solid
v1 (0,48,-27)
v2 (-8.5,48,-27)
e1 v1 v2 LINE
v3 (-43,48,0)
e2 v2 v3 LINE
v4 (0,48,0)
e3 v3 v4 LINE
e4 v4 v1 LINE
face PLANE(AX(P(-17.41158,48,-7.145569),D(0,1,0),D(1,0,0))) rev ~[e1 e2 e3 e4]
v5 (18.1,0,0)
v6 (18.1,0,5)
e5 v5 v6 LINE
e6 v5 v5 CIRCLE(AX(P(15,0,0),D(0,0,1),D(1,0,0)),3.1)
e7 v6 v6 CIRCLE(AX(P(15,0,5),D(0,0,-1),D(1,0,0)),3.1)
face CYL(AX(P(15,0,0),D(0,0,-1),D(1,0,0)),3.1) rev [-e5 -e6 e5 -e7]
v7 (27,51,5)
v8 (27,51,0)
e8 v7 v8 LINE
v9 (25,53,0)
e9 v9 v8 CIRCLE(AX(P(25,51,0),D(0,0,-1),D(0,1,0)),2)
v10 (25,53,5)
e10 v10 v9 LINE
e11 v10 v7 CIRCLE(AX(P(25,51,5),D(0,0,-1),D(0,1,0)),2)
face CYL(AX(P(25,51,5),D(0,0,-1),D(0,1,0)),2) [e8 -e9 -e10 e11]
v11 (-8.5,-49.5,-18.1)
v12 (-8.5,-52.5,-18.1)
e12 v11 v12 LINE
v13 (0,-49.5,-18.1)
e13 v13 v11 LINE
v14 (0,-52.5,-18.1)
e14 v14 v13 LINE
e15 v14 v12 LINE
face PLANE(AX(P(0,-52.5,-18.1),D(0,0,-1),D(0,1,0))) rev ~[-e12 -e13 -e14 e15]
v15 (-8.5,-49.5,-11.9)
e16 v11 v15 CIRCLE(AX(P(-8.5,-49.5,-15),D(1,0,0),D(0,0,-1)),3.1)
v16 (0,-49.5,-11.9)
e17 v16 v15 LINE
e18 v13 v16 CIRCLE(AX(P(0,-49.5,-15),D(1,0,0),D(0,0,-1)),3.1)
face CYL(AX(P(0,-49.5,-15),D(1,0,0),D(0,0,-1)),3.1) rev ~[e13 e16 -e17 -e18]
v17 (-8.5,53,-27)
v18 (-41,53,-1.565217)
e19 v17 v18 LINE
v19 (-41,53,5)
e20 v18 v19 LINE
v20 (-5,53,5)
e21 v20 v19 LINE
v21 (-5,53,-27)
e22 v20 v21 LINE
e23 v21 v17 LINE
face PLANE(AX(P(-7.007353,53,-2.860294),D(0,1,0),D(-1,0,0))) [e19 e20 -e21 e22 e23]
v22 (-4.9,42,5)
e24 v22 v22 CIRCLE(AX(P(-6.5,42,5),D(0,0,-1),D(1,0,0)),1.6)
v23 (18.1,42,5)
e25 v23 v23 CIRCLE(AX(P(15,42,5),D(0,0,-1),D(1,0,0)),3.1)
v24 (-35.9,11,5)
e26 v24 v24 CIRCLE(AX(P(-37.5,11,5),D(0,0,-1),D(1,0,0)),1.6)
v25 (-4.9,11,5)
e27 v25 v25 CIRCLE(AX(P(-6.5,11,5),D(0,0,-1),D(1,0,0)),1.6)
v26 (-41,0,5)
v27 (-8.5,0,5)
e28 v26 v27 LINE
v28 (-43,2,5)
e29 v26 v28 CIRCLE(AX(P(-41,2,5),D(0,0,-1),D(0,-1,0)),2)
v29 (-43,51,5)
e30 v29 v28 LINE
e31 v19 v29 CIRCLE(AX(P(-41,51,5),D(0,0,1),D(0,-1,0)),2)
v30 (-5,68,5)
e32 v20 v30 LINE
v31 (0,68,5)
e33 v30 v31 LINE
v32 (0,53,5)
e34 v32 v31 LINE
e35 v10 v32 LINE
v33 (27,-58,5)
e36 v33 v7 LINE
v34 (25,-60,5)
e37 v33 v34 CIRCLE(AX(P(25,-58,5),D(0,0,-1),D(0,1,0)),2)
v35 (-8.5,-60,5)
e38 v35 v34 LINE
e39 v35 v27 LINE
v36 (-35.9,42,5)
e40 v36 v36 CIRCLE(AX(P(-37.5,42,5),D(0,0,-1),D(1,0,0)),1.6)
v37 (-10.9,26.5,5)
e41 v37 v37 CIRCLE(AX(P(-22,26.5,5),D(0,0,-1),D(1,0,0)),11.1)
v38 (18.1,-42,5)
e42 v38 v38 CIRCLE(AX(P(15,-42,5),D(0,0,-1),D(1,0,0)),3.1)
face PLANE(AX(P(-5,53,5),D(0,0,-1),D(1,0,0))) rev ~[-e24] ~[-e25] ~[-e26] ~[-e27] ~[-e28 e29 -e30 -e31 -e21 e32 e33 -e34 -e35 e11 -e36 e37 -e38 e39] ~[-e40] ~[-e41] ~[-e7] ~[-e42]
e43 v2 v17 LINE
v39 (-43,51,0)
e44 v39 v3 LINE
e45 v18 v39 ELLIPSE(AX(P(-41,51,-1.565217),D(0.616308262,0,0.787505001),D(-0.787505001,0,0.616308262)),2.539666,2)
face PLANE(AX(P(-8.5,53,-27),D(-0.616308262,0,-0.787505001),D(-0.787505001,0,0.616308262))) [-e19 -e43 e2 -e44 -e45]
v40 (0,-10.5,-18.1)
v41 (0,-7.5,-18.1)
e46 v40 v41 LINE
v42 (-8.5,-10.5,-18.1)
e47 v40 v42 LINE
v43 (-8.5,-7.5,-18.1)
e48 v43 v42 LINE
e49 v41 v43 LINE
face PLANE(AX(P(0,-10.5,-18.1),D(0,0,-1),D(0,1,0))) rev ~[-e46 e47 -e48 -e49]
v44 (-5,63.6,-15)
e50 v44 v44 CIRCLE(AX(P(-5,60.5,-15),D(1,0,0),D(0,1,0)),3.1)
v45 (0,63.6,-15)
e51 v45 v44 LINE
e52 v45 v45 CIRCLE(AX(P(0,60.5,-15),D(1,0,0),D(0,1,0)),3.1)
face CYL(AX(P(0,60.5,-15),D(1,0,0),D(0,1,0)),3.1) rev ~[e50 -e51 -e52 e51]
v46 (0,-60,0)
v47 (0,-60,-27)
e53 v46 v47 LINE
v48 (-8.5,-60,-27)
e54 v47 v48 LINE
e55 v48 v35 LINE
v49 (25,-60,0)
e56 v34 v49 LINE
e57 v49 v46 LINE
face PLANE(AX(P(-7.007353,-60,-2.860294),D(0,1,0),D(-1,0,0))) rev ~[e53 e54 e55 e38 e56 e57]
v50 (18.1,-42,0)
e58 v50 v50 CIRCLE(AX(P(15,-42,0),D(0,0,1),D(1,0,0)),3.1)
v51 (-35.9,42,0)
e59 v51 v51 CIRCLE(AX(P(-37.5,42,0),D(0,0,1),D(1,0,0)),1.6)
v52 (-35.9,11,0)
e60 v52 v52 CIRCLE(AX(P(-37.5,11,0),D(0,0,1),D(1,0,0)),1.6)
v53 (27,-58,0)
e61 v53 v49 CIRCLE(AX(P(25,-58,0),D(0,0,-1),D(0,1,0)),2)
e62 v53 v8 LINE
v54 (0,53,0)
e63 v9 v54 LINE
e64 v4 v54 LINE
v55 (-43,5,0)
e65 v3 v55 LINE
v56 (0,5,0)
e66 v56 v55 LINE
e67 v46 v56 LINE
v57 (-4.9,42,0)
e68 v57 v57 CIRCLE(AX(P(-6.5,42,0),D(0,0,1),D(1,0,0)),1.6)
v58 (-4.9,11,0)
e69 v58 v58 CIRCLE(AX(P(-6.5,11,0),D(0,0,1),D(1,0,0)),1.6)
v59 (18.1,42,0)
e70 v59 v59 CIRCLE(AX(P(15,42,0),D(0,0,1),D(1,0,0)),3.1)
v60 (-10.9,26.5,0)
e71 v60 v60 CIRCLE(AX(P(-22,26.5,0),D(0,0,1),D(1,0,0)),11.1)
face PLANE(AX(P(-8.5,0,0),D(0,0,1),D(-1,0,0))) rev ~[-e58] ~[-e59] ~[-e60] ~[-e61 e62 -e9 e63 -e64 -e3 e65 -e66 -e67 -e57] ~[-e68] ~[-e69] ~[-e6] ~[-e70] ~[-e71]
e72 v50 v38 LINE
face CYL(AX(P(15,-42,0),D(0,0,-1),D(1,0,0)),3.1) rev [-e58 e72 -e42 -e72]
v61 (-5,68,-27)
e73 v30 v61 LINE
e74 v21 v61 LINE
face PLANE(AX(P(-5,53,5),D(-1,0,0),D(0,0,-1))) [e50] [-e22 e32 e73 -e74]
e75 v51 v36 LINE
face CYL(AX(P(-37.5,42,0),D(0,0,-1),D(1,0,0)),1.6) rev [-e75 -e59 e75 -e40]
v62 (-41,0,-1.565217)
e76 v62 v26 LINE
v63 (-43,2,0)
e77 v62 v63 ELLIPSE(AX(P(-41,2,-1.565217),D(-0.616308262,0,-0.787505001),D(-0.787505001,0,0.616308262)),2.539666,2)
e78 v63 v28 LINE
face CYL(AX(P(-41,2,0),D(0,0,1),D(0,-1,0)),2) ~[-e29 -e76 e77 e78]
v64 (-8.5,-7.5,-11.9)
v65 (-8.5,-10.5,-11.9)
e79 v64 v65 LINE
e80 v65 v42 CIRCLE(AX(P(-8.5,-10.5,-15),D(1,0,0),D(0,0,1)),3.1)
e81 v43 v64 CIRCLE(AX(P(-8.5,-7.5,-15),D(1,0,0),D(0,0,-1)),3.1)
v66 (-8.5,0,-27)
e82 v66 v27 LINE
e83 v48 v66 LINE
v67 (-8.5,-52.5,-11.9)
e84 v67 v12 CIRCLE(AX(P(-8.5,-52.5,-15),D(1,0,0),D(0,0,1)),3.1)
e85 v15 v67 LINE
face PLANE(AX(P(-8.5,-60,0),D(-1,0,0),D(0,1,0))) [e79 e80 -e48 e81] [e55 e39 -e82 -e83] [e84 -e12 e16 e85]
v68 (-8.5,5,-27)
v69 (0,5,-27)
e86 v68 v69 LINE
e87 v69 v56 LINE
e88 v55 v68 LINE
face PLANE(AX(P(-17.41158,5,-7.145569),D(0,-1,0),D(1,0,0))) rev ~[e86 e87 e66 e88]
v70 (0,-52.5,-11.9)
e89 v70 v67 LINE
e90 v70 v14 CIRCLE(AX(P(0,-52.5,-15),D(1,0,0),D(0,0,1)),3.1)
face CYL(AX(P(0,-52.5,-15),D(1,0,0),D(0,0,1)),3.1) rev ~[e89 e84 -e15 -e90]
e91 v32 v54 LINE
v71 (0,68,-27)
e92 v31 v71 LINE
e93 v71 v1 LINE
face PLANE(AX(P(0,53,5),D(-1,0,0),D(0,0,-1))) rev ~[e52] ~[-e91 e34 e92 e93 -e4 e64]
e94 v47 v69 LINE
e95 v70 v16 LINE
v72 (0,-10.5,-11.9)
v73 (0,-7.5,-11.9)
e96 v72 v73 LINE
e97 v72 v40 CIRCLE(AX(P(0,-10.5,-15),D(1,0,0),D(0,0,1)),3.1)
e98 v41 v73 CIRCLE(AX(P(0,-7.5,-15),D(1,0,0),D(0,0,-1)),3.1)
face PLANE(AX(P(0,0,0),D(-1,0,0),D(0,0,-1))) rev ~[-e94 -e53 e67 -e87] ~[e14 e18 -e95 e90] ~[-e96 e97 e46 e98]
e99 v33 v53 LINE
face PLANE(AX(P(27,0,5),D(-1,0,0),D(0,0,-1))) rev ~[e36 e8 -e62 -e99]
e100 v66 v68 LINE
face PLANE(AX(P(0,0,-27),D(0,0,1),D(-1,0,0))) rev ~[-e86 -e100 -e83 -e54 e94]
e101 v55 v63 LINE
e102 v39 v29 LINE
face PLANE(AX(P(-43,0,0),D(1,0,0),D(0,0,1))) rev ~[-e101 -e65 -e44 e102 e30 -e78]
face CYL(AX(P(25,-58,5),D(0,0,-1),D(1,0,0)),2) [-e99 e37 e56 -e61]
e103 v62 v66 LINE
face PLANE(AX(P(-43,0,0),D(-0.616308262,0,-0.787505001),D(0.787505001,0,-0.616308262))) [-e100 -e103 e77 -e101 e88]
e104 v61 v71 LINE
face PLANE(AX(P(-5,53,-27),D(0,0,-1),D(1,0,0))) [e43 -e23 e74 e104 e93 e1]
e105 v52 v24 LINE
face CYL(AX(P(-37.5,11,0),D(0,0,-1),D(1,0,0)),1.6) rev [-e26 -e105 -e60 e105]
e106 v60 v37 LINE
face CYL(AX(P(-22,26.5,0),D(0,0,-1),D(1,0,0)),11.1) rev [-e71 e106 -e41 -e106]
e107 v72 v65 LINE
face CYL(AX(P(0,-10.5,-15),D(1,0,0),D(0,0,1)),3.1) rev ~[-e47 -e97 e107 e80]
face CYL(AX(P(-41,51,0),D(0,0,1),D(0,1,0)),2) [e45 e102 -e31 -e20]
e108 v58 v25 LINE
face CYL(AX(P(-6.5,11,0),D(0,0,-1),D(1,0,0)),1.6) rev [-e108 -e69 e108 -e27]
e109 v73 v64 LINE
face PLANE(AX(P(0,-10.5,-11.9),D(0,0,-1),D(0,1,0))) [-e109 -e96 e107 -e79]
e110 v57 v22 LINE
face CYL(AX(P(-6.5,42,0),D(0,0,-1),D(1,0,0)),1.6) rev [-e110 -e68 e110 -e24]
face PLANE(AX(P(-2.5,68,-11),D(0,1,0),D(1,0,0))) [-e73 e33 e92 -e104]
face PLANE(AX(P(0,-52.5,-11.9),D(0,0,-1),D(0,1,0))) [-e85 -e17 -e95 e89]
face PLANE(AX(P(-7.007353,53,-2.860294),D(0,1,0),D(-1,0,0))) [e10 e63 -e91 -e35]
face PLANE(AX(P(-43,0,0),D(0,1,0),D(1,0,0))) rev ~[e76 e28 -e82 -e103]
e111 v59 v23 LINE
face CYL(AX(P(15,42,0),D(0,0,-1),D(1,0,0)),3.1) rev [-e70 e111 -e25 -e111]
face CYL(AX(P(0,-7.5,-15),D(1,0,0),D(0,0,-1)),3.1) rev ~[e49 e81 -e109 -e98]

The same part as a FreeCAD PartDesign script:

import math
import FreeCAD as App
import Part
import Sketcher
Q = App.Units.Quantity


def edges_at(feature, points):
    """Names of the edges that pass closest to the given points."""
    edges = feature.Shape.Edges
    near = lambda p: min(range(len(edges)), key=lambda i: edges[i].distToShape(Part.Vertex(*p))[0])
    return sorted({f"Edge{near(p) + 1}" for p in points})


def add_polygon(sketch, points):
    """Adds a closed chain of lines whose ends are joined by coincident constraints."""
    first, n = sketch.GeometryCount, len(points)
    for a, b in zip(points, points[1:] + points[:1]):
        sketch.addGeometry(Part.LineSegment(App.Vector(*a, 0), App.Vector(*b, 0)), False)
    for i in range(n):
        sketch.addConstraint(Sketcher.Constraint("Coincident", first + i, 2, first + (i + 1) % n, 1))

doc = App.newDocument("Part")
params = doc.addObject("Spreadsheet::Sheet", "Params")
for row, (alias, value) in enumerate([
    ("sketch1_width", "70 mm"),
    ("sketch1_width2", "27 mm"),
    ("sketch1_height", "5 mm"),
    ("sketch1_width3", "34.5 mm"),
    ("pad1_length", "60 mm"),
    ("pad1_length2", "53 mm"),
    ("sketch2_diameter", "22.2 mm"),
    ("sketch2_diameter2", "6.2 mm"),
    ("sketch2_diameter3", "3.2 mm"),
    ("sketch2_height", "60 mm"),
    ("sketch2_width", "34.5 mm"),
    ("sketch3_radius", "3.1 mm"),
    ("sketch3_width", "3 mm"),
    ("sketch4_width", "43 mm"),
    ("sketch4_height", "5 mm"),
    ("sketch4_height2", "32 mm"),
    ("sketch4_width2", "8.5 mm"),
    ("pad2_length", "5 mm"),
    ("sketch5_width", "43 mm"),
    ("sketch5_height", "32 mm"),
    ("sketch5_height2", "5 mm"),
    ("sketch5_width2", "8.5 mm"),
    ("pad3_length", "5 mm"),
    ("sketch6_width", "43 mm"),
    ("sketch6_height", "27 mm"),
    ("sketch7_width", "5 mm"),
    ("sketch7_height", "32 mm"),
    ("pad4_length", "15 mm"),
    ("sketch8_diameter", "6.2 mm"),
    ("fillet_radius", "2 mm"),
], start=1):
    params.set(f"A{row}", alias)
    params.set(f"B{row}", "=" + value)
    params.setAlias(f"B{row}", alias)

body = doc.addObject("PartDesign::Body", "Body")

# Sketch on XZ plane
sketch1 = body.newObject("Sketcher::SketchObject", "Sketch")
sketch1.AttachmentSupport = (doc.getObject("XZ_Plane"), [""])
sketch1.MapMode = "FlatFace"
add_polygon(sketch1, [(27, 5), (-43, 5), (-43, 0), (-8, 0), (-8, -27), (0, -27), (0, 0), (27, 0)])  # lines 0-7
sketch1.addConstraint([
    Sketcher.Constraint("Horizontal", 0),
    Sketcher.Constraint("Vertical", 1),
    Sketcher.Constraint("Horizontal", 2),
    Sketcher.Constraint("Vertical", 3),
    Sketcher.Constraint("Horizontal", 4),
    Sketcher.Constraint("Vertical", 5),
    Sketcher.Constraint("Horizontal", 6),
    Sketcher.Constraint("Vertical", 7),
    Sketcher.Constraint("Coincident", 5, 2, -1, 1),
    Sketcher.Constraint("PointOnObject", 1, 2, -1),
    Sketcher.Constraint("Equal", 6, 3),
    Sketcher.Constraint("DistanceX", 0, 2, 0, 1, Q("70 mm")),
    Sketcher.Constraint("DistanceX", 6, 1, 6, 2, Q("27 mm")),
    Sketcher.Constraint("DistanceY", 1, 2, 1, 1, Q("5 mm")),
    Sketcher.Constraint("DistanceX", 2, 1, 2, 2, Q("34.5 mm")),
])
sketch1.setExpression("Constraints[19]", "Params.sketch1_width")
sketch1.setExpression("Constraints[20]", "Params.sketch1_width2")
sketch1.setExpression("Constraints[21]", "Params.sketch1_height")
sketch1.setExpression("Constraints[22]", "Params.sketch1_width3")
pad1 = body.newObject("PartDesign::Pad", "Pad")
pad1.Profile = sketch1
pad1.Type = "TwoLengths"
pad1.setExpression("Length", "Params.pad1_length")
pad1.setExpression("Length2", "Params.pad1_length2")

# Sketch on XY plane
sketch2 = body.newObject("Sketcher::SketchObject", "Sketch001")
sketch2.AttachmentSupport = (doc.getObject("XY_Plane"), [""])
sketch2.MapMode = "FlatFace"
sketch2.addGeometry(Part.Circle(App.Vector(-22, 26.5, 0), App.Vector(0, 0, 1), 11.1), False)  # 0
sketch2.addGeometry(Part.Circle(App.Vector(15, 42, 0), App.Vector(0, 0, 1), 3.1), False)  # 1
sketch2.addGeometry(Part.Circle(App.Vector(15, -42, 0), App.Vector(0, 0, 1), 3.1), False)  # 2
sketch2.addGeometry(Part.Circle(App.Vector(15, 0, 0), App.Vector(0, 0, 1), 3.1), False)  # 3
sketch2.addGeometry(Part.Circle(App.Vector(-37.5, 42, 0), App.Vector(0, 0, 1), 1.6), False)  # 4
sketch2.addGeometry(Part.Circle(App.Vector(-6.5, 42, 0), App.Vector(0, 0, 1), 1.6), False)  # 5
sketch2.addGeometry(Part.Circle(App.Vector(-6.5, 11, 0), App.Vector(0, 0, 1), 1.6), False)  # 6
sketch2.addGeometry(Part.Circle(App.Vector(-37.5, 11, 0), App.Vector(0, 0, 1), 1.6), False)  # 7
add_polygon(sketch2, [(-43, 0), (-43, -60), (-8.5, -60), (-8.5, 0)])  # lines 8-11
sketch2.addConstraint([
    Sketcher.Constraint("Vertical", 8),
    Sketcher.Constraint("Horizontal", 9),
    Sketcher.Constraint("Vertical", 10),
    Sketcher.Constraint("Horizontal", 11),
    Sketcher.Constraint("Equal", 1, 2),
    Sketcher.Constraint("Equal", 2, 3),
    Sketcher.Constraint("Equal", 4, 5),
    Sketcher.Constraint("Equal", 5, 6),
    Sketcher.Constraint("Equal", 6, 7),
    Sketcher.Constraint("Symmetric", 1, 3, 2, 3, -1),
    Sketcher.Constraint("PointOnObject", 3, 3, -1),
    Sketcher.Constraint("PointOnObject", 10, 2, -1),
    Sketcher.Constraint("Horizontal", 1, 3, 4, 3),
    Sketcher.Constraint("Horizontal", 4, 3, 5, 3),
    Sketcher.Constraint("Horizontal", 6, 3, 7, 3),
    Sketcher.Constraint("Vertical", 2, 3, 3, 3),
    Sketcher.Constraint("Vertical", 5, 3, 6, 3),
    Sketcher.Constraint("Vertical", 4, 3, 7, 3),
    Sketcher.Constraint("Diameter", 0, Q("22.2 mm")),
    Sketcher.Constraint("Diameter", 1, Q("6.2 mm")),
    Sketcher.Constraint("Diameter", 4, Q("3.2 mm")),
    Sketcher.Constraint("DistanceY", 8, 2, 8, 1, Q("60 mm")),
    Sketcher.Constraint("DistanceX", 9, 1, 9, 2, Q("34.5 mm")),
    Sketcher.Constraint("DistanceX", 0, 3, -1, 1, Q("22 mm")),
    Sketcher.Constraint("DistanceX", -1, 1, 1, 3, Q("15 mm")),
    Sketcher.Constraint("DistanceY", -1, 1, 1, 3, Q("42 mm")),
    Sketcher.Constraint("DistanceY", -1, 1, 6, 3, Q("11 mm")),
    Sketcher.Constraint("DistanceX", 8, 2, -1, 1, Q("43 mm")),
    Sketcher.Constraint("DistanceX", 4, 3, 5, 3, Q("31 mm")),
    Sketcher.Constraint("DistanceX", 9, 2, 6, 3, Q("2 mm")),
    Sketcher.Constraint("DistanceY", -1, 1, 0, 3, Q("26.5 mm")),
])
sketch2.setExpression("Constraints[22]", "Params.sketch2_diameter")
sketch2.setExpression("Constraints[23]", "Params.sketch2_diameter2")
sketch2.setExpression("Constraints[24]", "Params.sketch2_diameter3")
sketch2.setExpression("Constraints[25]", "Params.sketch2_height")
sketch2.setExpression("Constraints[26]", "Params.sketch2_width")
pocket1 = body.newObject("PartDesign::Pocket", "Pocket")
pocket1.Profile = sketch2
pocket1.Type = "ThroughAll"
pocket1.Midplane = True

# Sketch on YZ plane
sketch3 = body.newObject("Sketcher::SketchObject", "Sketch002")
sketch3.AttachmentSupport = (doc.getObject("YZ_Plane"), [""])
sketch3.MapMode = "FlatFace"
sketch3.addGeometry([
    Part.ArcOfCircle(Part.Circle(App.Vector(-52.5, -15, 0), App.Vector(0, 0, 1), 3.1), math.radians(90), math.radians(270)),  # 0
    Part.LineSegment(App.Vector(-52.5, -18.1, 0), App.Vector(-49.5, -18.1, 0)),  # 1
    Part.ArcOfCircle(Part.Circle(App.Vector(-49.5, -15, 0), App.Vector(0, 0, 1), 3.1), math.radians(-90), math.radians(90)),  # 2
    Part.LineSegment(App.Vector(-49.5, -11.9, 0), App.Vector(-52.5, -11.9, 0)),  # 3
    Part.ArcOfCircle(Part.Circle(App.Vector(-10.5, -15, 0), App.Vector(0, 0, 1), 3.1), math.radians(90), math.radians(270)),  # 4
    Part.LineSegment(App.Vector(-10.5, -18.1, 0), App.Vector(-7.5, -18.1, 0)),  # 5
    Part.ArcOfCircle(Part.Circle(App.Vector(-7.5, -15, 0), App.Vector(0, 0, 1), 3.1), math.radians(-90), math.radians(90)),  # 6
    Part.LineSegment(App.Vector(-7.5, -11.9, 0), App.Vector(-10.5, -11.9, 0)),  # 7
], False)
sketch3.addConstraint([
    Sketcher.Constraint("Tangent", 0, 2, 1, 1),
    Sketcher.Constraint("Tangent", 1, 2, 2, 1),
    Sketcher.Constraint("Tangent", 2, 2, 3, 1),
    Sketcher.Constraint("Tangent", 3, 2, 0, 1),
    Sketcher.Constraint("Tangent", 4, 2, 5, 1),
    Sketcher.Constraint("Tangent", 5, 2, 6, 1),
    Sketcher.Constraint("Tangent", 6, 2, 7, 1),
    Sketcher.Constraint("Tangent", 7, 2, 4, 1),
    Sketcher.Constraint("Horizontal", 1),
    Sketcher.Constraint("Horizontal", 3),
    Sketcher.Constraint("Horizontal", 5),
    Sketcher.Constraint("Horizontal", 7),
    Sketcher.Constraint("Equal", 2, 4),
    Sketcher.Constraint("Horizontal", 2, 3, 4, 3),
    Sketcher.Constraint("Equal", 3, 5),
    Sketcher.Constraint("Radius", 0, Q("3.1 mm")),
    Sketcher.Constraint("DistanceX", 1, 1, 1, 2, Q("3 mm")),
    Sketcher.Constraint("DistanceY", 0, 3, -1, 1, Q("15 mm")),
    Sketcher.Constraint("DistanceX", 2, 3, 4, 3, Q("39 mm")),
    Sketcher.Constraint("DistanceX", 0, 3, -1, 1, Q("52.5 mm")),
])
sketch3.setExpression("Constraints[15]", "Params.sketch3_radius")
sketch3.setExpression("Constraints[16]", "Params.sketch3_width")
pocket2 = body.newObject("PartDesign::Pocket", "Pocket001")
pocket2.Profile = sketch3
pocket2.Type = "ThroughAll"

# Sketch on XZ plane
sketch4 = body.newObject("Sketcher::SketchObject", "Sketch003")
sketch4.AttachmentSupport = (doc.getObject("XZ_Plane"), [""])
sketch4.MapMode = "FlatFace"
add_polygon(sketch4, [(-43, 5), (-43, 0), (-8, -27), (0, -27), (0, 5)])  # lines 0-4
sketch4.addConstraint([
    Sketcher.Constraint("Vertical", 0),
    Sketcher.Constraint("Horizontal", 2),
    Sketcher.Constraint("Vertical", 3),
    Sketcher.Constraint("Horizontal", 4),
    Sketcher.Constraint("PointOnObject", 0, 2, -1),
    Sketcher.Constraint("PointOnObject", 2, 2, -2),
    Sketcher.Constraint("DistanceX", 4, 2, 4, 1, Q("43 mm")),
    Sketcher.Constraint("DistanceY", 0, 2, 0, 1, Q("5 mm")),
    Sketcher.Constraint("DistanceY", 3, 1, 3, 2, Q("32 mm")),
    Sketcher.Constraint("DistanceX", 2, 1, 2, 2, Q("8.5 mm")),
])
sketch4.setExpression("Constraints[11]", "Params.sketch4_width")
sketch4.setExpression("Constraints[12]", "Params.sketch4_height")
sketch4.setExpression("Constraints[13]", "Params.sketch4_height2")
sketch4.setExpression("Constraints[14]", "Params.sketch4_width2")
pad2 = body.newObject("PartDesign::Pad", "Pad001")
pad2.Profile = sketch4
pad2.setExpression("Length", "Params.pad2_length")
pad2.Reversed = True

# Sketch on XZ plane
sketch5 = body.newObject("Sketcher::SketchObject", "Sketch004")
sketch5.AttachmentSupport = (doc.getObject("XZ_Plane"), [""])
sketch5.MapMode = "FlatFace"
sketch5.AttachmentOffset = App.Placement(App.Vector(0, 0, -53), App.Rotation())
add_polygon(sketch5, [(-43, 5), (0, 5), (0, -27), (-8, -27), (-43, 0)])  # lines 0-4
sketch5.addConstraint([
    Sketcher.Constraint("Horizontal", 0),
    Sketcher.Constraint("Vertical", 1),
    Sketcher.Constraint("Horizontal", 2),
    Sketcher.Constraint("Vertical", 4),
    Sketcher.Constraint("PointOnObject", 0, 2, -2),
    Sketcher.Constraint("PointOnObject", 3, 2, -1),
    Sketcher.Constraint("DistanceX", 0, 1, 0, 2, Q("43 mm")),
    Sketcher.Constraint("DistanceY", 1, 2, 1, 1, Q("32 mm")),
    Sketcher.Constraint("DistanceY", 4, 1, 4, 2, Q("5 mm")),
    Sketcher.Constraint("DistanceX", 2, 2, 2, 1, Q("8.5 mm")),
])
sketch5.setExpression("Constraints[11]", "Params.sketch5_width")
sketch5.setExpression("Constraints[12]", "Params.sketch5_height")
sketch5.setExpression("Constraints[13]", "Params.sketch5_height2")
sketch5.setExpression("Constraints[14]", "Params.sketch5_width2")
pad3 = body.newObject("PartDesign::Pad", "Pad002")
pad3.Profile = sketch5
pad3.setExpression("Length", "Params.pad3_length")

# Sketch on YZ plane
sketch6 = body.newObject("Sketcher::SketchObject", "Sketch005")
sketch6.AttachmentSupport = (doc.getObject("YZ_Plane"), [""])
sketch6.MapMode = "FlatFace"
add_polygon(sketch6, [(5, 0), (5, -27), (48, -27), (48, 0)])  # lines 0-3
sketch6.addConstraint([
    Sketcher.Constraint("Vertical", 0),
    Sketcher.Constraint("Horizontal", 1),
    Sketcher.Constraint("Vertical", 2),
    Sketcher.Constraint("Horizontal", 3),
    Sketcher.Constraint("PointOnObject", 2, 2, -1),
    Sketcher.Constraint("DistanceX", 1, 1, 1, 2, Q("43 mm")),
    Sketcher.Constraint("DistanceY", 0, 2, 0, 1, Q("27 mm")),
    Sketcher.Constraint("DistanceX", -1, 1, 0, 2, Q("5 mm")),
])
sketch6.setExpression("Constraints[9]", "Params.sketch6_width")
sketch6.setExpression("Constraints[10]", "Params.sketch6_height")
pocket3 = body.newObject("PartDesign::Pocket", "Pocket002")
pocket3.Profile = sketch6
pocket3.Type = "ThroughAll"

# Sketch on XZ plane
sketch7 = body.newObject("Sketcher::SketchObject", "Sketch006")
sketch7.AttachmentSupport = (doc.getObject("XZ_Plane"), [""])
sketch7.MapMode = "FlatFace"
sketch7.AttachmentOffset = App.Placement(App.Vector(0, 0, -53), App.Rotation())
add_polygon(sketch7, [(-5, -27), (-5, 5), (0, 5), (0, -27)])  # lines 0-3
sketch7.addConstraint([
    Sketcher.Constraint("Vertical", 0),
    Sketcher.Constraint("Horizontal", 1),
    Sketcher.Constraint("Vertical", 2),
    Sketcher.Constraint("Horizontal", 3),
    Sketcher.Constraint("PointOnObject", 1, 2, -2),
    Sketcher.Constraint("DistanceX", 1, 1, 1, 2, Q("5 mm")),
    Sketcher.Constraint("DistanceY", 0, 1, 0, 2, Q("32 mm")),
    Sketcher.Constraint("DistanceY", -1, 1, 0, 2, Q("5 mm")),
])
sketch7.setExpression("Constraints[9]", "Params.sketch7_width")
sketch7.setExpression("Constraints[10]", "Params.sketch7_height")
pad4 = body.newObject("PartDesign::Pad", "Pad003")
pad4.Profile = sketch7
pad4.setExpression("Length", "Params.pad4_length")
pad4.Reversed = True

# Sketch on YZ plane
sketch8 = body.newObject("Sketcher::SketchObject", "Sketch007")
sketch8.AttachmentSupport = (doc.getObject("YZ_Plane"), [""])
sketch8.MapMode = "FlatFace"
sketch8.addGeometry(Part.Circle(App.Vector(60.5, -15, 0), App.Vector(0, 0, 1), 3.1), False)
sketch8.addConstraint([
    Sketcher.Constraint("Diameter", 0, Q("6.2 mm")),
    Sketcher.Constraint("DistanceY", 0, 3, -1, 1, Q("15 mm")),
    Sketcher.Constraint("DistanceX", -1, 1, 0, 3, Q("60.5 mm")),
])
sketch8.setExpression("Constraints[0]", "Params.sketch8_diameter")
pocket4 = body.newObject("PartDesign::Pocket", "Pocket003")
pocket4.Profile = sketch8
pocket4.Type = "ThroughAll"
doc.recompute()

fillet = body.newObject("PartDesign::Fillet", "Fillet")
fillet.Base = (pocket4, edges_at(pocket4, [
    (27, -60, 2.5),
    (27, 53, 2.5),
    (-43, 0, 2.5),
    (-43, 53, 2.5),
]))
fillet.setExpression("Radius", "Params.fillet_radius")

doc.recompute()
